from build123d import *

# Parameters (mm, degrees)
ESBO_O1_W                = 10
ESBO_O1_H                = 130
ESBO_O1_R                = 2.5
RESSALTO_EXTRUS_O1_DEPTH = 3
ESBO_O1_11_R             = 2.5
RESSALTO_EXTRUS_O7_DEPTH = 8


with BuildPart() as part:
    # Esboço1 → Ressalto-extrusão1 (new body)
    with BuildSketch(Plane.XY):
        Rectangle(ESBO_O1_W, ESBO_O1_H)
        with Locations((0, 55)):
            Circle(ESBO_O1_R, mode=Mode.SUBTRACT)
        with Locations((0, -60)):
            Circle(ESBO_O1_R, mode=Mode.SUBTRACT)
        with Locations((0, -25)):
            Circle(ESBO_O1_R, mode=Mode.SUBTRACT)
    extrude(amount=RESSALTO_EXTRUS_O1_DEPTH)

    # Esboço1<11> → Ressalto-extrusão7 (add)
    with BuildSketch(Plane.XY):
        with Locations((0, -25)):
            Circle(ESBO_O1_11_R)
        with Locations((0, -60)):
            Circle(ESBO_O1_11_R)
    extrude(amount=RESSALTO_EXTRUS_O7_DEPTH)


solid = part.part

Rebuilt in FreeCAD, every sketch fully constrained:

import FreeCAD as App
import Part
import Sketcher


def add_polygon(sketch, points):
    """Adds a closed chain of lines whose ends are joined by coincident constraints."""
    first, n = sketch.GeometryCount, len(points)
    for a, b in zip(points, points[1:] + points[:1]):
        sketch.addGeometry(Part.LineSegment(App.Vector(*a, 0), App.Vector(*b, 0)), False)
    for i in range(n):
        sketch.addConstraint(Sketcher.Constraint("Coincident", first + i, 2, first + (i + 1) % n, 1))

doc = App.newDocument("Part")
params = doc.addObject("Spreadsheet::Sheet", "Params")
for row, (alias, value) in enumerate([
    ("sketch1_diameter", "5 mm"),
    ("sketch1_width", "10 mm"),
    ("sketch1_height", "130 mm"),
    ("pad1_length", "3 mm"),
    ("sketch2_diameter", "5 mm"),
    ("pad2_length", "8 mm"),
], start=1):
    params.set(f"A{row}", alias)
    params.set(f"B{row}", "=" + value)
    params.setAlias(f"B{row}", alias)

body = doc.addObject("PartDesign::Body", "Body")

# Sketch on XY plane
sketch1 = body.newObject("Sketcher::SketchObject", "Sketch")
sketch1.AttachmentSupport = (doc.getObject("XY_Plane"), [""])
sketch1.MapMode = "FlatFace"
add_polygon(sketch1, [(-5, 65), (-5, -65), (5, -65), (5, 65)])  # lines 0-3
sketch1.addGeometry(Part.Circle(App.Vector(0, -60, 0), App.Vector(0, 0, 1), 2.5), False)  # 4
sketch1.addGeometry(Part.Circle(App.Vector(0, -25, 0), App.Vector(0, 0, 1), 2.5), False)  # 5
sketch1.addGeometry(Part.Circle(App.Vector(0, 55, 0), App.Vector(0, 0, 1), 2.5), False)  # 6
sketch1.addConstraint([
    Sketcher.Constraint("Vertical", 0),
    Sketcher.Constraint("Horizontal", 1),
    Sketcher.Constraint("Vertical", 2),
    Sketcher.Constraint("Horizontal", 3),
    Sketcher.Constraint("Equal", 4, 5),
    Sketcher.Constraint("Equal", 5, 6),
    Sketcher.Constraint("Symmetric", 0, 2, 2, 2, -1, 1),
    Sketcher.Constraint("PointOnObject", 4, 3, -2),
    Sketcher.Constraint("PointOnObject", 5, 3, -2),
    Sketcher.Constraint("PointOnObject", 6, 3, -2),
    Sketcher.Constraint("Diameter", 4, 5.0),
    Sketcher.Constraint("DistanceX", 1, 1, 1, 2, 10.0),
    Sketcher.Constraint("DistanceY", 0, 2, 0, 1, 130.0),
    Sketcher.Constraint("DistanceY", 4, 3, -1, 1, 60.0),
    Sketcher.Constraint("DistanceY", 5, 3, -1, 1, 25.0),
    Sketcher.Constraint("DistanceY", -1, 1, 6, 3, 55.0),
])
sketch1.setExpression("Constraints[14]", "Params.sketch1_diameter")
sketch1.setExpression("Constraints[15]", "Params.sketch1_width")
sketch1.setExpression("Constraints[16]", "Params.sketch1_height")
pad1 = body.newObject("PartDesign::Pad", "Pad")
pad1.Profile = sketch1
pad1.setExpression("Length", "Params.pad1_length")

# Sketch on XY plane
sketch2 = body.newObject("Sketcher::SketchObject", "Sketch001")
sketch2.AttachmentSupport = (doc.getObject("XY_Plane"), [""])
sketch2.MapMode = "FlatFace"
sketch2.addGeometry([
    Part.Circle(App.Vector(0, -25, 0), App.Vector(0, 0, 1), 2.5),
    Part.Circle(App.Vector(0, -60, 0), App.Vector(0, 0, 1), 2.5),
], False)
sketch2.addConstraint([
    Sketcher.Constraint("Equal", 0, 1),
    Sketcher.Constraint("PointOnObject", 0, 3, -2),
    Sketcher.Constraint("PointOnObject", 1, 3, -2),
    Sketcher.Constraint("Diameter", 0, 5.0),
    Sketcher.Constraint("DistanceY", 0, 3, -1, 1, 25.0),
    Sketcher.Constraint("DistanceY", 1, 3, -1, 1, 60.0),
])
sketch2.setExpression("Constraints[3]", "Params.sketch2_diameter")
pad2 = body.newObject("PartDesign::Pad", "Pad001")
pad2.Profile = sketch2
pad2.setExpression("Length", "Params.pad2_length")

doc.recompute()
